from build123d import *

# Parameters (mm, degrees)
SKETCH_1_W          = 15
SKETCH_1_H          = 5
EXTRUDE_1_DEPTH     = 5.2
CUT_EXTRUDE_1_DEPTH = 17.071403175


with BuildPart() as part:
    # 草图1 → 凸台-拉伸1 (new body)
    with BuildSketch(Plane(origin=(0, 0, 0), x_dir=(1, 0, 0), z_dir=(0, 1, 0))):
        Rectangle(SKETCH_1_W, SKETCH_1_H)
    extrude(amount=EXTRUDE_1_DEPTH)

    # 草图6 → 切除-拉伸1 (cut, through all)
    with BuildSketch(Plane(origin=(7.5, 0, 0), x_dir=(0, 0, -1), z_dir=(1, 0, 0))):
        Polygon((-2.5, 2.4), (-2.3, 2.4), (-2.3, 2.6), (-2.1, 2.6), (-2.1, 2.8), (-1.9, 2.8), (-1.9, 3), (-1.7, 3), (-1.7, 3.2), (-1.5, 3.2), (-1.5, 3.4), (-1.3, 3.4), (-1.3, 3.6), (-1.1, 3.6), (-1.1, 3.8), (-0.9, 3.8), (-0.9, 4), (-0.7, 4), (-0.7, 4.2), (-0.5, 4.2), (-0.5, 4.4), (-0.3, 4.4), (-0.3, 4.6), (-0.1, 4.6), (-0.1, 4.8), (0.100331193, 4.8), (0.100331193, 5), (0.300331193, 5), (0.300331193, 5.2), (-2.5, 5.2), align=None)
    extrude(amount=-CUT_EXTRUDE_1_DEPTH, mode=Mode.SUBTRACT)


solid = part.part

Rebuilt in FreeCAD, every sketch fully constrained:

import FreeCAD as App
import Part
import Sketcher

V = App.Vector

doc = App.newDocument("Part")
body = doc.addObject("PartDesign::Body", "Body")

sketch1 = doc.addObject("Sketcher::SketchObject", "Sketch")
body.addObject(sketch1)
sketch1.AttachmentSupport = (doc.XZ_Plane, [""])
sketch1.MapMode = "FlatFace"
sketch1.addGeometry([
    Part.LineSegment(V(-8, -2, 0), V(-8, 2, 0)),
    Part.LineSegment(V(-8, 2, 0), V(8, 2, 0)),
    Part.LineSegment(V(8, 2, 0), V(8, -2, 0)),
    Part.LineSegment(V(8, -2, 0), V(-8, -2, 0)),
], False)
sketch1.addConstraint([
    Sketcher.Constraint("Coincident", 0, 2, 1, 1),
    Sketcher.Constraint("Coincident", 1, 2, 2, 1),
    Sketcher.Constraint("Coincident", 2, 2, 3, 1),
    Sketcher.Constraint("Coincident", 3, 2, 0, 1),
    Sketcher.Constraint("Vertical", 0),
    Sketcher.Constraint("Horizontal", 1),
    Sketcher.Constraint("Vertical", 2),
    Sketcher.Constraint("Horizontal", 3),
    Sketcher.Constraint("Symmetric", 0, 2, 2, 2, -1, 1),
    Sketcher.Constraint("DistanceX", 1, 1, 1, 2, 15.0),
    Sketcher.Constraint("DistanceY", 0, 1, 0, 2, 5.0),
])
pad1 = doc.addObject("PartDesign::Pad", "Pad")
body.addObject(pad1)
pad1.Profile = sketch1
pad1.Length = 5.2
pad1.Reversed = True

sketch2 = doc.addObject("Sketcher::SketchObject", "Sketch001")
body.addObject(sketch2)
sketch2.AttachmentSupport = (doc.YZ_Plane, [""])
sketch2.MapMode = "FlatFace"
sketch2.AttachmentOffset = App.Placement(V(0, 0, 7.5), App.Rotation())
sketch2.addGeometry([
    Part.LineSegment(V(2.4, 2.5, 0), V(2.4, 2.3, 0)),
    Part.LineSegment(V(2.4, 2.3, 0), V(2.6, 2.3, 0)),
    Part.LineSegment(V(2.6, 2.3, 0), V(2.6, 2.1, 0)),
    Part.LineSegment(V(2.6, 2.1, 0), V(2.8, 2.1, 0)),
    Part.LineSegment(V(2.8, 2.1, 0), V(2.8, 1.9, 0)),
    Part.LineSegment(V(2.8, 1.9, 0), V(3, 1.9, 0)),
    Part.LineSegment(V(3, 1.9, 0), V(3, 1.7, 0)),
    Part.LineSegment(V(3, 1.7, 0), V(3.2, 1.7, 0)),
    Part.LineSegment(V(3.2, 1.7, 0), V(3.2, 1.5, 0)),
    Part.LineSegment(V(3.2, 1.5, 0), V(3.4, 1.5, 0)),
    Part.LineSegment(V(3.4, 1.5, 0), V(3.4, 1.3, 0)),
    Part.LineSegment(V(3.4, 1.3, 0), V(3.6, 1.3, 0)),
    Part.LineSegment(V(3.6, 1.3, 0), V(3.6, 1.1, 0)),
    Part.LineSegment(V(3.6, 1.1, 0), V(3.8, 1.1, 0)),
    Part.LineSegment(V(3.8, 1.1, 0), V(3.8, 0.9, 0)),
    Part.LineSegment(V(3.8, 0.9, 0), V(4, 0.9, 0)),
    Part.LineSegment(V(4, 0.9, 0), V(4, 0.7, 0)),
    Part.LineSegment(V(4, 0.7, 0), V(4.2, 0.7, 0)),
    Part.LineSegment(V(4.2, 0.7, 0), V(4.2, 0.5, 0)),
    Part.LineSegment(V(4.2, 0.5, 0), V(4.4, 0.5, 0)),
    Part.LineSegment(V(4.4, 0.5, 0), V(4.4, 0.3, 0)),
    Part.LineSegment(V(4.4, 0.3, 0), V(4.6, 0.3, 0)),
    Part.LineSegment(V(4.6, 0.3, 0), V(4.6, 0.1, 0)),
    Part.LineSegment(V(4.6, 0.1, 0), V(4.8, 0.1, 0)),
    Part.LineSegment(V(4.8, 0.1, 0), V(4.8, -0.1, 0)),
    Part.LineSegment(V(4.8, -0.1, 0), V(5, -0.1, 0)),
    Part.LineSegment(V(5, -0.1, 0), V(5, -0.3, 0)),
    Part.LineSegment(V(5, -0.3, 0), V(5.2, -0.3, 0)),
    Part.LineSegment(V(5.2, -0.3, 0), V(5.2, 2.5, 0)),
    Part.LineSegment(V(5.2, 2.5, 0), V(2.4, 2.5, 0)),
], False)
sketch2.addConstraint([
    Sketcher.Constraint("Coincident", 0, 2, 1, 1),
    Sketcher.Constraint("Coincident", 1, 2, 2, 1),
    Sketcher.Constraint("Coincident", 2, 2, 3, 1),
    Sketcher.Constraint("Coincident", 3, 2, 4, 1),
    Sketcher.Constraint("Coincident", 4, 2, 5, 1),
    Sketcher.Constraint("Coincident", 5, 2, 6, 1),
    Sketcher.Constraint("Coincident", 6, 2, 7, 1),
    Sketcher.Constraint("Coincident", 7, 2, 8, 1),
    Sketcher.Constraint("Coincident", 8, 2, 9, 1),
    Sketcher.Constraint("Coincident", 9, 2, 10, 1),
    Sketcher.Constraint("Coincident", 10, 2, 11, 1),
    Sketcher.Constraint("Coincident", 11, 2, 12, 1),
    Sketcher.Constraint("Coincident", 12, 2, 13, 1),
    Sketcher.Constraint("Coincident", 13, 2, 14, 1),
    Sketcher.Constraint("Coincident", 14, 2, 15, 1),
    Sketcher.Constraint("Coincident", 15, 2, 16, 1),
    Sketcher.Constraint("Coincident", 16, 2, 17, 1),
    Sketcher.Constraint("Coincident", 17, 2, 18, 1),
    Sketcher.Constraint("Coincident", 18, 2, 19, 1),
    Sketcher.Constraint("Coincident", 19, 2, 20, 1),
    Sketcher.Constraint("Coincident", 20, 2, 21, 1),
    Sketcher.Constraint("Coincident", 21, 2, 22, 1),
    Sketcher.Constraint("Coincident", 22, 2, 23, 1),
    Sketcher.Constraint("Coincident", 23, 2, 24, 1),
    Sketcher.Constraint("Coincident", 24, 2, 25, 1),
    Sketcher.Constraint("Coincident", 25, 2, 26, 1),
    Sketcher.Constraint("Coincident", 26, 2, 27, 1),
    Sketcher.Constraint("Coincident", 27, 2, 28, 1),
    Sketcher.Constraint("Coincident", 28, 2, 29, 1),
    Sketcher.Constraint("Coincident", 29, 2, 0, 1),
    Sketcher.Constraint("Vertical", 0),
    Sketcher.Constraint("Horizontal", 1),
    Sketcher.Constraint("Vertical", 2),
    Sketcher.Constraint("Horizontal", 3),
    Sketcher.Constraint("Vertical", 4),
    Sketcher.Constraint("Horizontal", 5),
    Sketcher.Constraint("Vertical", 6),
    Sketcher.Constraint("Horizontal", 7),
    Sketcher.Constraint("Vertical", 8),
    Sketcher.Constraint("Horizontal", 9),
    Sketcher.Constraint("Vertical", 10),
    Sketcher.Constraint("Horizontal", 11),
    Sketcher.Constraint("Vertical", 12),
    Sketcher.Constraint("Horizontal", 13),
    Sketcher.Constraint("Vertical", 14),
    Sketcher.Constraint("Horizontal", 15),
    Sketcher.Constraint("Vertical", 16),
    Sketcher.Constraint("Horizontal", 17),
    Sketcher.Constraint("Vertical", 18),
    Sketcher.Constraint("Horizontal", 19),
    Sketcher.Constraint("Vertical", 20),
    Sketcher.Constraint("Horizontal", 21),
    Sketcher.Constraint("Vertical", 22),
    Sketcher.Constraint("Horizontal", 23),
    Sketcher.Constraint("Vertical", 24),
    Sketcher.Constraint("Horizontal", 25),
    Sketcher.Constraint("Vertical", 26),
    Sketcher.Constraint("Horizontal", 27),
    Sketcher.Constraint("Vertical", 28),
    Sketcher.Constraint("Horizontal", 29),
    Sketcher.Constraint("Equal", 1, 3),
    Sketcher.Constraint("Equal", 3, 5),
    Sketcher.Constraint("Equal", 5, 7),
    Sketcher.Constraint("Equal", 7, 9),
    Sketcher.Constraint("Equal", 9, 11),
    Sketcher.Constraint("Equal", 11, 13),
    Sketcher.Constraint("Equal", 13, 15),
    Sketcher.Constraint("Equal", 15, 17),
    Sketcher.Constraint("Equal", 17, 19),
    Sketcher.Constraint("Equal", 19, 21),
    Sketcher.Constraint("Equal", 21, 23),
    Sketcher.Constraint("Equal", 23, 25),
    Sketcher.Constraint("Equal", 25, 27),
    Sketcher.Constraint("Equal", 27, 0),
    Sketcher.Constraint("Equal", 0, 2),
    Sketcher.Constraint("Equal", 2, 4),
    Sketcher.Constraint("Equal", 4, 6),
    Sketcher.Constraint("Equal", 6, 8),
    Sketcher.Constraint("Equal", 8, 10),
    Sketcher.Constraint("Equal", 10, 12),
    Sketcher.Constraint("Equal", 12, 14),
    Sketcher.Constraint("Equal", 14, 16),
    Sketcher.Constraint("Equal", 16, 18),
    Sketcher.Constraint("Equal", 18, 20),
    Sketcher.Constraint("Equal", 20, 22),
    Sketcher.Constraint("Equal", 22, 26),
    Sketcher.Constraint("DistanceX", 1, 1, 1, 2, 0.2),
    Sketcher.Constraint("DistanceX", -1, 1, 5, 2, 3.0),
    Sketcher.Constraint("DistanceY", -1, 1, 0, 2, 2.3),
    Sketcher.Constraint("DistanceY", 24, 2, 24, 1, 0.200331),
])
pocket1 = doc.addObject("PartDesign::Pocket", "Pocket")
body.addObject(pocket1)
pocket1.Profile = sketch2
pocket1.Type = "ThroughAll"

doc.recompute()
